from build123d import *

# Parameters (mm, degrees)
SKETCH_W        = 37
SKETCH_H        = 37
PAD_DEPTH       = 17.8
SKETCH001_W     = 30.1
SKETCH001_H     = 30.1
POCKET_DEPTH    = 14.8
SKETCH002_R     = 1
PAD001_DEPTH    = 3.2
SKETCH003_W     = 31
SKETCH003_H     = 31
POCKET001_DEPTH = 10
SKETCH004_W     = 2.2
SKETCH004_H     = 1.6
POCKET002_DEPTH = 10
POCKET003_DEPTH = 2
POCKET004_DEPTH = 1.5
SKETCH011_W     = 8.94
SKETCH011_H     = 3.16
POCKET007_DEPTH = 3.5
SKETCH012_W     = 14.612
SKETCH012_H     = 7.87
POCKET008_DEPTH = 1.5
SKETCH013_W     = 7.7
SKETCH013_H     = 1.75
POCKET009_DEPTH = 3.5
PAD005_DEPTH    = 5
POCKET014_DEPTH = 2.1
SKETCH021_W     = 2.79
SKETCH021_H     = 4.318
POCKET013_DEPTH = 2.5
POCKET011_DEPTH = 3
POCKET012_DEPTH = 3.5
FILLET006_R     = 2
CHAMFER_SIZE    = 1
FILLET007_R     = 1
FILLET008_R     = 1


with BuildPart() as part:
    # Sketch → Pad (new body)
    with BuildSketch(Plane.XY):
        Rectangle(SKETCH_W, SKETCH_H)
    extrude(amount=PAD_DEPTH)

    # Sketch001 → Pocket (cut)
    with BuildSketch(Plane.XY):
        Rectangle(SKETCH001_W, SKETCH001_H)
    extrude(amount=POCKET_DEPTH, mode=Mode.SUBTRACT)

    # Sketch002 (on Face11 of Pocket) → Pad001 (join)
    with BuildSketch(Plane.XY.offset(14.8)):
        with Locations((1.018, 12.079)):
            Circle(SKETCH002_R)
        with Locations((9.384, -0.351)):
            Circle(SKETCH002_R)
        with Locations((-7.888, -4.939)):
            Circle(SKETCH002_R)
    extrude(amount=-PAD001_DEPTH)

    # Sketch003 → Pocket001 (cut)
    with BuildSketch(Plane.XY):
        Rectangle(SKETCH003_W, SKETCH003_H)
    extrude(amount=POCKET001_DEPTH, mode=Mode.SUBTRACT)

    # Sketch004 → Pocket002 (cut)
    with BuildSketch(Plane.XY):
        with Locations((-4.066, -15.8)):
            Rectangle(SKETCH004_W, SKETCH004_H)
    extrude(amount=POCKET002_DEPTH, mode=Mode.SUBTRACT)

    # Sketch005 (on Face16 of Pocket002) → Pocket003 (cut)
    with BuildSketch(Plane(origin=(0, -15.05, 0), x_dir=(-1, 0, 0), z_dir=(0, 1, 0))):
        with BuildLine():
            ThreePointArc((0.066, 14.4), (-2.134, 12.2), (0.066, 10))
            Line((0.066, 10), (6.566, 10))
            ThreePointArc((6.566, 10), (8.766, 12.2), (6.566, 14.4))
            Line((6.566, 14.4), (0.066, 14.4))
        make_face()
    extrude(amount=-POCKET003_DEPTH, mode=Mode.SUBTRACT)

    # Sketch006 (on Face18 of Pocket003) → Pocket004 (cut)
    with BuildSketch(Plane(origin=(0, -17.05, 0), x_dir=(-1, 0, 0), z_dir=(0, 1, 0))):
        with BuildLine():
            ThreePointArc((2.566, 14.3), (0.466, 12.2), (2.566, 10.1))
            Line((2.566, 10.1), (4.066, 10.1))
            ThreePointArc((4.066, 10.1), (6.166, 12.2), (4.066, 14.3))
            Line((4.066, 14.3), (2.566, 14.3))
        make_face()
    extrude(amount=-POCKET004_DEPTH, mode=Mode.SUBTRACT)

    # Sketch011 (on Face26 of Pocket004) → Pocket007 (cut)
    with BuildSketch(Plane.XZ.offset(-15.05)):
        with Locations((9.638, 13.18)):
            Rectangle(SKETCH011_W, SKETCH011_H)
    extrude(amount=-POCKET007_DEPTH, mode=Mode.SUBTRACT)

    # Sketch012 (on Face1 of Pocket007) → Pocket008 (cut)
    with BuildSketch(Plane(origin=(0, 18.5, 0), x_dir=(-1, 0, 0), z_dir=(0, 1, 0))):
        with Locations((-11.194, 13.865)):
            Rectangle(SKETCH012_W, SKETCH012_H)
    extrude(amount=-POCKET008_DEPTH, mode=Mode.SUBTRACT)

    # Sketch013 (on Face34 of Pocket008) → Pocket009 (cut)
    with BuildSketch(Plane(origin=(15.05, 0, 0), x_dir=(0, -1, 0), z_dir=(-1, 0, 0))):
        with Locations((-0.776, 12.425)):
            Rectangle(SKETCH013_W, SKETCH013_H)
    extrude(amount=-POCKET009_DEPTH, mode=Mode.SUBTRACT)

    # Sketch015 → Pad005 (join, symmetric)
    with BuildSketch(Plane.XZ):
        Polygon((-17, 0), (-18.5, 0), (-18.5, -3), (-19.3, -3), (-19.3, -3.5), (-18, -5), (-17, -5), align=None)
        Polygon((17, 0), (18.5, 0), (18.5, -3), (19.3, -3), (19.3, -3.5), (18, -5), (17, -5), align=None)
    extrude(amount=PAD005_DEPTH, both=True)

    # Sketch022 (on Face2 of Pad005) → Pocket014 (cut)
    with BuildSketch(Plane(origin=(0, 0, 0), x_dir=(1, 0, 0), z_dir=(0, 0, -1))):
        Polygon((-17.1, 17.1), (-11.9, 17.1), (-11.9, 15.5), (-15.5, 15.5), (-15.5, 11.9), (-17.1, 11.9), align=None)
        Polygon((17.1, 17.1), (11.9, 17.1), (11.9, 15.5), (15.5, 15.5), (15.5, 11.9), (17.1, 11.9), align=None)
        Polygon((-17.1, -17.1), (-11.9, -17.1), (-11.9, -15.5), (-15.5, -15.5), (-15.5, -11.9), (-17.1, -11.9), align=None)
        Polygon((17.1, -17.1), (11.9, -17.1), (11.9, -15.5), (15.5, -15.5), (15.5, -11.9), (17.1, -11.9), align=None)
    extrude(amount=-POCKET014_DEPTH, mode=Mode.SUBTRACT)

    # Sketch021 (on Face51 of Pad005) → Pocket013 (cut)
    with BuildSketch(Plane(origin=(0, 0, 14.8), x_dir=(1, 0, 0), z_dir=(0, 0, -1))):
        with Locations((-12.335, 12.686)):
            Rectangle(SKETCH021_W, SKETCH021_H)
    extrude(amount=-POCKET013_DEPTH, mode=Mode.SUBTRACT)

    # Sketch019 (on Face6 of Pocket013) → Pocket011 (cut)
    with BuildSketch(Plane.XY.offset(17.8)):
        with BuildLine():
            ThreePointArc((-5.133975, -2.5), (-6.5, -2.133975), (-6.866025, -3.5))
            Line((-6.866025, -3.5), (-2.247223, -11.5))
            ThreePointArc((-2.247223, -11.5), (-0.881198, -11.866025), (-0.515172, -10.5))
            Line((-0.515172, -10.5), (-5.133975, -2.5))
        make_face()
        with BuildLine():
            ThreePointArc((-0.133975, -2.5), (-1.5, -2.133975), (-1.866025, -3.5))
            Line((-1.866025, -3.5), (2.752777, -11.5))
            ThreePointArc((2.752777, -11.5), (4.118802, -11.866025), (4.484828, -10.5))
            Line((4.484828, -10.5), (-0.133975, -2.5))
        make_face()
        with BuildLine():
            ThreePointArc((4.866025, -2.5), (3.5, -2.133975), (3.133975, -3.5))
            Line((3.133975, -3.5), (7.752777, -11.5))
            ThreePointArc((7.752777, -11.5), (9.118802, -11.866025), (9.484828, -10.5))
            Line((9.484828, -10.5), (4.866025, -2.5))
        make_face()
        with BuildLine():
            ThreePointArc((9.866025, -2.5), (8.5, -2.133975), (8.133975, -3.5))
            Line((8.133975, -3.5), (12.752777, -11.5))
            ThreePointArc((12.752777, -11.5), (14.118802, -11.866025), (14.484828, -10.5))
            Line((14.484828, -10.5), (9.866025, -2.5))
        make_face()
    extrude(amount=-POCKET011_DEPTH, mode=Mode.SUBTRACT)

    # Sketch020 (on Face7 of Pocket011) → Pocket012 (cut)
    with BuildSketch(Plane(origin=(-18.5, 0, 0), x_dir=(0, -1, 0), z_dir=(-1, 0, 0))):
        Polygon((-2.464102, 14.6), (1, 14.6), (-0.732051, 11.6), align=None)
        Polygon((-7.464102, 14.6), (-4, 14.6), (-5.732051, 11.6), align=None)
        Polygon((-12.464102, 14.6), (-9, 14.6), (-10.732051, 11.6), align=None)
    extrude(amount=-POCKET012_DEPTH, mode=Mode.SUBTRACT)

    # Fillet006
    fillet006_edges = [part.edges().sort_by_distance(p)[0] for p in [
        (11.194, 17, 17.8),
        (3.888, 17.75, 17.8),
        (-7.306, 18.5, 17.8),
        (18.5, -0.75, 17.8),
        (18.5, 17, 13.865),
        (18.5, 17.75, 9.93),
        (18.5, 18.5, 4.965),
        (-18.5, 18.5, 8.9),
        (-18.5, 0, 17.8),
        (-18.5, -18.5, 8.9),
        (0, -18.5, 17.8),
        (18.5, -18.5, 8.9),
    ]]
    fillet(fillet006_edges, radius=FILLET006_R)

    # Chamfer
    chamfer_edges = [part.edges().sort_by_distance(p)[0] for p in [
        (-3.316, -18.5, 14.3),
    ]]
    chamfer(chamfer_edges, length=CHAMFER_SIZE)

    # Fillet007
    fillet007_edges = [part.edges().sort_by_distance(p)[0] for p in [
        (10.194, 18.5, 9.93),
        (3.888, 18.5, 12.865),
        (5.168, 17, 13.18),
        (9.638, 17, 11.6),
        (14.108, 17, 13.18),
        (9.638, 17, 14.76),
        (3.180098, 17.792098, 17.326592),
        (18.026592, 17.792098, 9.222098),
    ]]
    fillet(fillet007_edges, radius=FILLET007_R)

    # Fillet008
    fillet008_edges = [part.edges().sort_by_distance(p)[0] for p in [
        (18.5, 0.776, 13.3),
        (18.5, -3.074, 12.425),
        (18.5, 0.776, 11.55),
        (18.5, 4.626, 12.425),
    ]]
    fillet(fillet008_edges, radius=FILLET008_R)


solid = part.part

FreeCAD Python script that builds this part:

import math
import FreeCAD as App
import Part
import Sketcher
Q = App.Units.Quantity


def edges_at(feature, points):
    """Names of the edges that pass closest to the given points."""
    edges = feature.Shape.Edges
    near = lambda p: min(range(len(edges)), key=lambda i: edges[i].distToShape(Part.Vertex(*p))[0])
    return sorted({f"Edge{near(p) + 1}" for p in points})


def add_polygon(sketch, points):
    """Adds a closed chain of lines whose ends are joined by coincident constraints."""
    first, n = sketch.GeometryCount, len(points)
    for a, b in zip(points, points[1:] + points[:1]):
        sketch.addGeometry(Part.LineSegment(App.Vector(*a, 0), App.Vector(*b, 0)), False)
    for i in range(n):
        sketch.addConstraint(Sketcher.Constraint("Coincident", first + i, 2, first + (i + 1) % n, 1))

doc = App.newDocument("Part")
body = doc.addObject("PartDesign::Body", "Body")

# Sketch on XY plane
sketch1 = body.newObject("Sketcher::SketchObject", "Sketch")
sketch1.AttachmentSupport = (doc.getObject("XY_Plane"), [""])
sketch1.MapMode = "FlatFace"
add_polygon(sketch1, [(-18, 18), (-18, -18), (18, -18), (18, 18)])  # lines 0-3
sketch1.addConstraint(Sketcher.Constraint("Vertical", 0))
sketch1.addConstraint(Sketcher.Constraint("Horizontal", 1))
sketch1.addConstraint(Sketcher.Constraint("Vertical", 2))
sketch1.addConstraint(Sketcher.Constraint("Horizontal", 3))
sketch1.addConstraint(Sketcher.Constraint("Symmetric", 0, 2, 2, 2, -1, 1))
sketch1.addConstraint(Sketcher.Constraint("Equal", 3, 0))
sketch1.addConstraint(Sketcher.Constraint("DistanceX", 1, 1, 1, 2, 37.0))
pad1 = body.newObject("PartDesign::Pad", "Pad")
pad1.Profile = sketch1
pad1.Length = 17.8

# Sketch on XY plane
sketch2 = body.newObject("Sketcher::SketchObject", "Sketch001")
sketch2.AttachmentSupport = (doc.getObject("XY_Plane"), [""])
sketch2.MapMode = "FlatFace"
add_polygon(sketch2, [(-15, 15), (-15, -15), (15, -15), (15, 15)])  # lines 0-3
sketch2.addConstraint(Sketcher.Constraint("Vertical", 0))
sketch2.addConstraint(Sketcher.Constraint("Horizontal", 1))
sketch2.addConstraint(Sketcher.Constraint("Vertical", 2))
sketch2.addConstraint(Sketcher.Constraint("Horizontal", 3))
sketch2.addConstraint(Sketcher.Constraint("Symmetric", 0, 2, 2, 2, -1, 1))
sketch2.addConstraint(Sketcher.Constraint("Equal", 3, 0))
sketch2.addConstraint(Sketcher.Constraint("DistanceX", 1, 1, 1, 2, 30.1))
pocket1 = body.newObject("PartDesign::Pocket", "Pocket")
pocket1.Profile = sketch2
pocket1.Length = 14.8
pocket1.Reversed = True

# Sketch on XY plane
sketch3 = body.newObject("Sketcher::SketchObject", "Sketch002")
sketch3.AttachmentSupport = (doc.getObject("XY_Plane"), [""])
sketch3.MapMode = "FlatFace"
sketch3.AttachmentOffset = App.Placement(App.Vector(0, 0, 14.8), App.Rotation())
sketch3.addGeometry(Part.Circle(App.Vector(1, 12.1, 0), App.Vector(0, 0, 1), 1), False)
sketch3.addGeometry(Part.Circle(App.Vector(9.4, -0.4, 0), App.Vector(0, 0, 1), 1), False)
sketch3.addGeometry(Part.Circle(App.Vector(-7.9, -4.9, 0), App.Vector(0, 0, 1), 1), False)
sketch3.addConstraint(Sketcher.Constraint("Equal", 0, 1))
sketch3.addConstraint(Sketcher.Constraint("Equal", 1, 2))
sketch3.addConstraint(Sketcher.Constraint("Diameter", 0, 2.0))
sketch3.addConstraint(Sketcher.Constraint("DistanceY", 1, 3, 0, 3, 12.43))
sketch3.addConstraint(Sketcher.Constraint("DistanceX", -1, 1, 0, 3, 1.018))
sketch3.addConstraint(Sketcher.Constraint("DistanceY", -1, 1, 0, 3, 12.079))
sketch3.addConstraint(Sketcher.Constraint("DistanceX", -1, 1, 1, 3, 9.384))
sketch3.addConstraint(Sketcher.Constraint("DistanceX", 2, 3, -1, 1, 7.888))
sketch3.addConstraint(Sketcher.Constraint("DistanceY", 2, 3, -1, 1, 4.939))
pad2 = body.newObject("PartDesign::Pad", "Pad001")
pad2.Profile = sketch3
pad2.Length = 3.2
pad2.Reversed = True

# Sketch on XY plane
sketch4 = body.newObject("Sketcher::SketchObject", "Sketch003")
sketch4.AttachmentSupport = (doc.getObject("XY_Plane"), [""])
sketch4.MapMode = "FlatFace"
add_polygon(sketch4, [(-16, 16), (-16, -16), (16, -16), (16, 16)])  # lines 0-3
sketch4.addConstraint(Sketcher.Constraint("Vertical", 0))
sketch4.addConstraint(Sketcher.Constraint("Horizontal", 1))
sketch4.addConstraint(Sketcher.Constraint("Vertical", 2))
sketch4.addConstraint(Sketcher.Constraint("Horizontal", 3))
sketch4.addConstraint(Sketcher.Constraint("Symmetric", 0, 2, 2, 2, -1, 1))
sketch4.addConstraint(Sketcher.Constraint("Equal", 3, 0))
sketch4.addConstraint(Sketcher.Constraint("DistanceX", 1, 1, 1, 2, 31.0))
pocket2 = body.newObject("PartDesign::Pocket", "Pocket001")
pocket2.Profile = sketch4
pocket2.Length = 10
pocket2.Reversed = True

# Sketch on XY plane
sketch5 = body.newObject("Sketcher::SketchObject", "Sketch004")
sketch5.AttachmentSupport = (doc.getObject("XY_Plane"), [""])
sketch5.MapMode = "FlatFace"
add_polygon(sketch5, [(-5.2, -15), (-5.2, -16.6), (-3, -16.6), (-3, -15)])  # lines 0-3
sketch5.addConstraint(Sketcher.Constraint("Vertical", 0))
sketch5.addConstraint(Sketcher.Constraint("Horizontal", 1))
sketch5.addConstraint(Sketcher.Constraint("Vertical", 2))
sketch5.addConstraint(Sketcher.Constraint("Horizontal", 3))
sketch5.addConstraint(Sketcher.Constraint("DistanceX", 1, 1, 1, 2, 2.2))
sketch5.addConstraint(Sketcher.Constraint("DistanceY", 0, 2, 0, 1, 1.6))
sketch5.addConstraint(Sketcher.Constraint("DistanceY", 2, 2, -1, 1, 15.0))
sketch5.addConstraint(Sketcher.Constraint("DistanceX", 0, 2, -1, 1, 5.166))
pocket3 = body.newObject("PartDesign::Pocket", "Pocket002")
pocket3.Profile = sketch5
pocket3.Length = 10
pocket3.Reversed = True

# Sketch on XZ plane
sketch6 = body.newObject("Sketcher::SketchObject", "Sketch005")
sketch6.AttachmentSupport = (doc.getObject("XZ_Plane"), [""])
sketch6.MapMode = "FlatFace"
sketch6.AttachmentOffset = App.Placement(App.Vector(0, 0, 15.05), App.Rotation())
sketch6.addGeometry(Part.ArcOfCircle(Part.Circle(App.Vector(-0.1, 12.2, 0), App.Vector(0, 0, 1), 2.2), math.radians(-90), math.radians(90)), False)
sketch6.addGeometry(Part.LineSegment(App.Vector(-0.1, 10, 0), App.Vector(-6.6, 10, 0)), False)
sketch6.addGeometry(Part.ArcOfCircle(Part.Circle(App.Vector(-6.6, 12.2, 0), App.Vector(0, 0, 1), 2.2), math.radians(90), math.radians(270)), False)
sketch6.addGeometry(Part.LineSegment(App.Vector(-6.6, 14.4, 0), App.Vector(-0.1, 14.4, 0)), False)
sketch6.addConstraint(Sketcher.Constraint("Tangent", 0, 1, 1, 1))
sketch6.addConstraint(Sketcher.Constraint("Tangent", 1, 2, 2, 2))
sketch6.addConstraint(Sketcher.Constraint("Tangent", 2, 1, 3, 1))
sketch6.addConstraint(Sketcher.Constraint("Tangent", 3, 2, 0, 2))
sketch6.addConstraint(Sketcher.Constraint("Horizontal", 1))
sketch6.addConstraint(Sketcher.Constraint("Horizontal", 3))
sketch6.addConstraint(Sketcher.Constraint("Radius", 0, 2.2))
sketch6.addConstraint(Sketcher.Constraint("DistanceX", 1, 2, 1, 1, 6.5))
sketch6.addConstraint(Sketcher.Constraint("DistanceY", -1, 1, 0, 1, 10.0))
sketch6.addConstraint(Sketcher.Constraint("DistanceX", 0, 3, -1, 1, 0.066))
pocket4 = body.newObject("PartDesign::Pocket", "Pocket003")
pocket4.Profile = sketch6
pocket4.Length = 2
pocket4.Reversed = True

# Sketch on XZ plane
sketch7 = body.newObject("Sketcher::SketchObject", "Sketch006")
sketch7.AttachmentSupport = (doc.getObject("XZ_Plane"), [""])
sketch7.MapMode = "FlatFace"
sketch7.AttachmentOffset = App.Placement(App.Vector(0, 0, 17.05), App.Rotation())
sketch7.addGeometry(Part.ArcOfCircle(Part.Circle(App.Vector(-2.6, 12.2, 0), App.Vector(0, 0, 1), 2.1), math.radians(-90), math.radians(90)), False)
sketch7.addGeometry(Part.LineSegment(App.Vector(-2.6, 10.1, 0), App.Vector(-4.1, 10.1, 0)), False)
sketch7.addGeometry(Part.ArcOfCircle(Part.Circle(App.Vector(-4.1, 12.2, 0), App.Vector(0, 0, 1), 2.1), math.radians(90), math.radians(270)), False)
sketch7.addGeometry(Part.LineSegment(App.Vector(-4.1, 14.3, 0), App.Vector(-2.6, 14.3, 0)), False)
sketch7.addConstraint(Sketcher.Constraint("Tangent", 0, 1, 1, 1))
sketch7.addConstraint(Sketcher.Constraint("Tangent", 1, 2, 2, 2))
sketch7.addConstraint(Sketcher.Constraint("Tangent", 2, 1, 3, 1))
sketch7.addConstraint(Sketcher.Constraint("Tangent", 3, 2, 0, 2))
sketch7.addConstraint(Sketcher.Constraint("Horizontal", 1))
sketch7.addConstraint(Sketcher.Constraint("Horizontal", 3))
sketch7.addConstraint(Sketcher.Constraint("Radius", 0, 2.1))
sketch7.addConstraint(Sketcher.Constraint("DistanceX", 1, 2, 1, 1, 1.5))
sketch7.addConstraint(Sketcher.Constraint("DistanceY", -1, 1, 0, 3, 12.2))
sketch7.addConstraint(Sketcher.Constraint("DistanceX", 0, 3, -1, 1, 2.566))
pocket5 = body.newObject("PartDesign::Pocket", "Pocket004")
pocket5.Profile = sketch7
pocket5.Length = 1.5
pocket5.Reversed = True

# Sketch on XZ plane
sketch8 = body.newObject("Sketcher::SketchObject", "Sketch007")
sketch8.AttachmentSupport = (doc.getObject("XZ_Plane"), [""])
sketch8.MapMode = "FlatFace"
sketch8.AttachmentOffset = App.Placement(App.Vector(0, 0, -15.05), App.Rotation())
add_polygon(sketch8, [(5.2, 14.8), (5.2, 11.6), (14.1, 11.6), (14.1, 14.8)])  # lines 0-3
sketch8.addConstraint(Sketcher.Constraint("Vertical", 0))
sketch8.addConstraint(Sketcher.Constraint("Horizontal", 1))
sketch8.addConstraint(Sketcher.Constraint("Vertical", 2))
sketch8.addConstraint(Sketcher.Constraint("Horizontal", 3))
sketch8.addConstraint(Sketcher.Constraint("DistanceX", 1, 1, 1, 2, 8.94))
sketch8.addConstraint(Sketcher.Constraint("DistanceY", 0, 2, 0, 1, 3.16))
sketch8.addConstraint(Sketcher.Constraint("DistanceY", -1, 1, 0, 2, 11.6))
sketch8.addConstraint(Sketcher.Constraint("DistanceX", -1, 1, 0, 2, 5.168))
pocket6 = body.newObject("PartDesign::Pocket", "Pocket005")
pocket6.Profile = sketch8
pocket6.Length = 3.5

# Sketch on XZ plane
sketch9 = body.newObject("Sketcher::SketchObject", "Sketch008")
sketch9.AttachmentSupport = (doc.getObject("XZ_Plane"), [""])
sketch9.MapMode = "FlatFace"
sketch9.AttachmentOffset = App.Placement(App.Vector(0, 0, -18.5), App.Rotation())
add_polygon(sketch9, [(18, 18), (18, 10), (4, 10), (4, 18)])  # lines 0-3
sketch9.addConstraint(Sketcher.Constraint("Vertical", 0))
sketch9.addConstraint(Sketcher.Constraint("Horizontal", 1))
sketch9.addConstraint(Sketcher.Constraint("Vertical", 2))
sketch9.addConstraint(Sketcher.Constraint("Horizontal", 3))
sketch9.addConstraint(Sketcher.Constraint("DistanceY", 0, 2, 0, 1, 7.87))
sketch9.addConstraint(Sketcher.Constraint("DistanceX", -1, 1, 0, 2, 18.5))
sketch9.addConstraint(Sketcher.Constraint("DistanceY", -1, 1, 2, 2, 17.8))
sketch9.addConstraint(Sketcher.Constraint("DistanceX", 1, 2, 1, 1, 14.612))
pocket7 = body.newObject("PartDesign::Pocket", "Pocket006")
pocket7.Profile = sketch9
pocket7.Length = 1.5
pocket7.Reversed = True

# Sketch on YZ plane
sketch10 = body.newObject("Sketcher::SketchObject", "Sketch009")
sketch10.AttachmentSupport = (doc.getObject("YZ_Plane"), [""])
sketch10.MapMode = "FlatFace"
sketch10.AttachmentOffset = App.Placement(App.Vector(0, 0, 15.05), App.Rotation())
add_polygon(sketch10, [(4.6, 13.3), (4.6, 11.6), (-3.1, 11.6), (-3.1, 13.3)])  # lines 0-3
sketch10.addConstraint(Sketcher.Constraint("Vertical", 0))
sketch10.addConstraint(Sketcher.Constraint("Horizontal", 1))
sketch10.addConstraint(Sketcher.Constraint("Vertical", 2))
sketch10.addConstraint(Sketcher.Constraint("Horizontal", 3))
sketch10.addConstraint(Sketcher.Constraint("DistanceX", 1, 2, 1, 1, 7.7))
sketch10.addConstraint(Sketcher.Constraint("DistanceY", 0, 2, 0, 1, 1.75))
sketch10.addConstraint(Sketcher.Constraint("DistanceY", -1, 1, 2, 2, 13.3))
sketch10.addConstraint(Sketcher.Constraint("DistanceX", -1, 1, 0, 2, 4.626))
pocket8 = body.newObject("PartDesign::Pocket", "Pocket007")
pocket8.Profile = sketch10
pocket8.Length = 3.5
pocket8.Reversed = True

# Sketch on XZ plane
sketch11 = body.newObject("Sketcher::SketchObject", "Sketch010")
sketch11.AttachmentSupport = (doc.getObject("XZ_Plane"), [""])
sketch11.MapMode = "FlatFace"
add_polygon(sketch11, [(-17, 0), (-18.5, 0), (-18.5, -3), (-19.3, -3), (-19.3, -3.5), (-18, -5), (-17, -5)])  # lines 0-6
add_polygon(sketch11, [(18.5, 0), (17, 0), (17, -5), (18, -5), (19.3, -3.5), (19.3, -3), (18.5, -3)])  # lines 7-13
sketch11.addConstraint(Sketcher.Constraint("Horizontal", 0))
sketch11.addConstraint(Sketcher.Constraint("Vertical", 1))
sketch11.addConstraint(Sketcher.Constraint("Horizontal", 2))
sketch11.addConstraint(Sketcher.Constraint("Vertical", 3))
sketch11.addConstraint(Sketcher.Constraint("Horizontal", 5))
sketch11.addConstraint(Sketcher.Constraint("Vertical", 6))
sketch11.addConstraint(Sketcher.Constraint("Horizontal", 7))
sketch11.addConstraint(Sketcher.Constraint("Vertical", 8))
sketch11.addConstraint(Sketcher.Constraint("Horizontal", 9))
sketch11.addConstraint(Sketcher.Constraint("Vertical", 11))
sketch11.addConstraint(Sketcher.Constraint("Horizontal", 12))
sketch11.addConstraint(Sketcher.Constraint("Vertical", 13))
sketch11.addConstraint(Sketcher.Constraint("Symmetric", 6, 2, 7, 2, -1, 1))
sketch11.addConstraint(Sketcher.Constraint("Symmetric", 4, 2, 9, 2, -2))
sketch11.addConstraint(Sketcher.Constraint("Symmetric", 3, 2, 10, 2, -2))
sketch11.addConstraint(Sketcher.Constraint("Symmetric", 1, 2, 12, 2, -2))
sketch11.addConstraint(Sketcher.Constraint("PointOnObject", 0, 2, -1))
sketch11.addConstraint(Sketcher.Constraint("DistanceX", 5, 1, 5, 2, 1.0))
sketch11.addConstraint(Sketcher.Constraint("DistanceY", 1, 2, 1, 1, 3.0))
sketch11.addConstraint(Sketcher.Constraint("DistanceY", 6, 1, 6, 2, 5.0))
sketch11.addConstraint(Sketcher.Constraint("DistanceX", 0, 2, 0, 1, 1.5))
sketch11.addConstraint(Sketcher.Constraint("DistanceX", 2, 2, 2, 1, 0.8))
sketch11.addConstraint(Sketcher.Constraint("DistanceY", 3, 2, 3, 1, 0.5))
sketch11.addConstraint(Sketcher.Constraint("DistanceX", 4, 2, -1, 1, 18.0))
pad3 = body.newObject("PartDesign::Pad", "Pad002")
pad3.Profile = sketch11
pad3.Length = 10
pad3.Midplane = True

# Sketch on XY plane
sketch12 = body.newObject("Sketcher::SketchObject", "Sketch011")
sketch12.AttachmentSupport = (doc.getObject("XY_Plane"), [""])
sketch12.MapMode = "FlatFace"
add_polygon(sketch12, [(-11.9, -17.1), (-17.1, -17.1), (-17.1, -11.9), (-15.5, -11.9), (-15.5, -15.5), (-11.9, -15.5)])  # lines 0-5
add_polygon(sketch12, [(17.1, -17.1), (11.9, -17.1), (11.9, -15.5), (15.5, -15.5), (15.5, -11.9), (17.1, -11.9)])  # lines 6-11
add_polygon(sketch12, [(-17.1, 17.1), (-11.9, 17.1), (-11.9, 15.5), (-15.5, 15.5), (-15.5, 11.9), (-17.1, 11.9)])  # lines 12-17
add_polygon(sketch12, [(11.9, 17.1), (17.1, 17.1), (17.1, 11.9), (15.5, 11.9), (15.5, 15.5), (11.9, 15.5)])  # lines 18-23
sketch12.addConstraint(Sketcher.Constraint("Horizontal", 0))
sketch12.addConstraint(Sketcher.Constraint("Vertical", 1))
sketch12.addConstraint(Sketcher.Constraint("Horizontal", 2))
sketch12.addConstraint(Sketcher.Constraint("Vertical", 3))
sketch12.addConstraint(Sketcher.Constraint("Horizontal", 4))
sketch12.addConstraint(Sketcher.Constraint("Vertical", 5))
sketch12.addConstraint(Sketcher.Constraint("Horizontal", 6))
sketch12.addConstraint(Sketcher.Constraint("Vertical", 7))
sketch12.addConstraint(Sketcher.Constraint("Horizontal", 8))
sketch12.addConstraint(Sketcher.Constraint("Vertical", 9))
sketch12.addConstraint(Sketcher.Constraint("Horizontal", 10))
sketch12.addConstraint(Sketcher.Constraint("Vertical", 11))
sketch12.addConstraint(Sketcher.Constraint("Horizontal", 12))
sketch12.addConstraint(Sketcher.Constraint("Vertical", 13))
sketch12.addConstraint(Sketcher.Constraint("Horizontal", 14))
sketch12.addConstraint(Sketcher.Constraint("Vertical", 15))
sketch12.addConstraint(Sketcher.Constraint("Horizontal", 16))
sketch12.addConstraint(Sketcher.Constraint("Vertical", 17))
sketch12.addConstraint(Sketcher.Constraint("Horizontal", 18))
sketch12.addConstraint(Sketcher.Constraint("Vertical", 19))
sketch12.addConstraint(Sketcher.Constraint("Horizontal", 20))
sketch12.addConstraint(Sketcher.Constraint("Vertical", 21))
sketch12.addConstraint(Sketcher.Constraint("Horizontal", 22))
sketch12.addConstraint(Sketcher.Constraint("Vertical", 23))
sketch12.addConstraint(Sketcher.Constraint("Symmetric", 6, 2, 12, 2, -1, 1))
sketch12.addConstraint(Sketcher.Constraint("Symmetric", 8, 2, 14, 2, -1, 1))
sketch12.addConstraint(Sketcher.Constraint("Symmetric", 10, 2, 16, 2, -1, 1))
sketch12.addConstraint(Sketcher.Constraint("Symmetric", 0, 2, 18, 2, -1, 1))
sketch12.addConstraint(Sketcher.Constraint("Symmetric", 2, 2, 20, 2, -1, 1))
sketch12.addConstraint(Sketcher.Constraint("Symmetric", 4, 2, 22, 2, -1, 1))
sketch12.addConstraint(Sketcher.Constraint("Symmetric", 5, 2, 6, 2, -2))
sketch12.addConstraint(Sketcher.Constraint("Symmetric", 3, 2, 8, 2, -2))
sketch12.addConstraint(Sketcher.Constraint("Symmetric", 1, 2, 10, 2, -2))
sketch12.addConstraint(Sketcher.Constraint("Equal", 18, 1))
sketch12.addConstraint(Sketcher.Constraint("Equal", 22, 3))
sketch12.addConstraint(Sketcher.Constraint("DistanceX", 0, 2, 0, 1, 5.2))
sketch12.addConstraint(Sketcher.Constraint("DistanceX", 2, 1, 2, 2, 1.6))
sketch12.addConstraint(Sketcher.Constraint("DistanceX", 0, 2, 6, 2, 29.0))
sketch12.addConstraint(Sketcher.Constraint("DistanceY", 2, 2, 12, 2, 29.0))
pocket9 = body.newObject("PartDesign::Pocket", "Pocket008")
pocket9.Profile = sketch12
pocket9.Length = 2.1
pocket9.Reversed = True

# Sketch on XY plane
sketch13 = body.newObject("Sketcher::SketchObject", "Sketch012")
sketch13.AttachmentSupport = (doc.getObject("XY_Plane"), [""])
sketch13.MapMode = "FlatFace"
sketch13.AttachmentOffset = App.Placement(App.Vector(0, 0, 14.8), App.Rotation())
add_polygon(sketch13, [(-13.7, -14.8), (-13.7, -10.5), (-10.9, -10.5), (-10.9, -14.8)])  # lines 0-3
sketch13.addConstraint(Sketcher.Constraint("Vertical", 0))
sketch13.addConstraint(Sketcher.Constraint("Horizontal", 1))
sketch13.addConstraint(Sketcher.Constraint("Vertical", 2))
sketch13.addConstraint(Sketcher.Constraint("Horizontal", 3))
sketch13.addConstraint(Sketcher.Constraint("DistanceX", 1, 1, 1, 2, 2.79))
sketch13.addConstraint(Sketcher.Constraint("DistanceY", 0, 1, 0, 2, 4.318))
sketch13.addConstraint(Sketcher.Constraint("DistanceX", 0, 2, -1, 1, 13.73))
sketch13.addConstraint(Sketcher.Constraint("DistanceY", 0, 2, -1, 1, 10.527))
pocket10 = body.newObject("PartDesign::Pocket", "Pocket009")
pocket10.Profile = sketch13
pocket10.Length = 2.5
pocket10.Reversed = True

# Sketch on XY plane
sketch14 = body.newObject("Sketcher::SketchObject", "Sketch013")
sketch14.AttachmentSupport = (doc.getObject("XY_Plane"), [""])
sketch14.MapMode = "FlatFace"
sketch14.AttachmentOffset = App.Placement(App.Vector(0, 0, 17.8), App.Rotation())
sketch14.addGeometry(Part.ArcOfCircle(Part.Circle(App.Vector(-6, -3, 0), App.Vector(0, 0, 1), 1), math.radians(30), math.radians(210)), False)
sketch14.addGeometry(Part.LineSegment(App.Vector(-6.9, -3.5, 0), App.Vector(-2.2, -11.5, 0)), False)
sketch14.addGeometry(Part.ArcOfCircle(Part.Circle(App.Vector(-1.4, -11, 0), App.Vector(0, 0, 1), 1), math.radians(-150), math.radians(30)), False)
sketch14.addGeometry(Part.LineSegment(App.Vector(-0.5, -10.5, 0), App.Vector(-5.1, -2.5, 0)), False)
sketch14.addGeometry(Part.ArcOfCircle(Part.Circle(App.Vector(-1, -3, 0), App.Vector(0, 0, 1), 1), math.radians(30), math.radians(210)), False)
sketch14.addGeometry(Part.LineSegment(App.Vector(-1.9, -3.5, 0), App.Vector(2.8, -11.5, 0)), False)
sketch14.addGeometry(Part.ArcOfCircle(Part.Circle(App.Vector(3.6, -11, 0), App.Vector(0, 0, 1), 1), math.radians(-150), math.radians(30)), False)
sketch14.addGeometry(Part.LineSegment(App.Vector(4.5, -10.5, 0), App.Vector(-0.1, -2.5, 0)), False)
sketch14.addGeometry(Part.ArcOfCircle(Part.Circle(App.Vector(4, -3, 0), App.Vector(0, 0, 1), 1), math.radians(30), math.radians(210)), False)
sketch14.addGeometry(Part.LineSegment(App.Vector(3.1, -3.5, 0), App.Vector(7.8, -11.5, 0)), False)
sketch14.addGeometry(Part.ArcOfCircle(Part.Circle(App.Vector(8.6, -11, 0), App.Vector(0, 0, 1), 1), math.radians(-150), math.radians(30)), False)
sketch14.addGeometry(Part.LineSegment(App.Vector(9.5, -10.5, 0), App.Vector(4.9, -2.5, 0)), False)
sketch14.addGeometry(Part.ArcOfCircle(Part.Circle(App.Vector(9, -3, 0), App.Vector(0, 0, 1), 1), math.radians(30), math.radians(210)), False)
sketch14.addGeometry(Part.LineSegment(App.Vector(8.1, -3.5, 0), App.Vector(12.8, -11.5, 0)), False)
sketch14.addGeometry(Part.ArcOfCircle(Part.Circle(App.Vector(13.6, -11, 0), App.Vector(0, 0, 1), 1), math.radians(-150), math.radians(30)), False)
sketch14.addGeometry(Part.LineSegment(App.Vector(14.5, -10.5, 0), App.Vector(9.9, -2.5, 0)), False)
sketch14.addConstraint(Sketcher.Constraint("Tangent", 0, 2, 1, 1))
sketch14.addConstraint(Sketcher.Constraint("Tangent", 1, 2, 2, 1))
sketch14.addConstraint(Sketcher.Constraint("Tangent", 2, 2, 3, 1))
sketch14.addConstraint(Sketcher.Constraint("Tangent", 3, 2, 0, 1))
sketch14.addConstraint(Sketcher.Constraint("Tangent", 4, 2, 5, 1))
sketch14.addConstraint(Sketcher.Constraint("Tangent", 5, 2, 6, 1))
sketch14.addConstraint(Sketcher.Constraint("Tangent", 6, 2, 7, 1))
sketch14.addConstraint(Sketcher.Constraint("Tangent", 7, 2, 4, 1))
sketch14.addConstraint(Sketcher.Constraint("Tangent", 8, 2, 9, 1))
sketch14.addConstraint(Sketcher.Constraint("Tangent", 9, 2, 10, 1))
sketch14.addConstraint(Sketcher.Constraint("Tangent", 10, 2, 11, 1))
sketch14.addConstraint(Sketcher.Constraint("Tangent", 11, 2, 8, 1))
sketch14.addConstraint(Sketcher.Constraint("Tangent", 12, 2, 13, 1))
sketch14.addConstraint(Sketcher.Constraint("Tangent", 13, 2, 14, 1))
sketch14.addConstraint(Sketcher.Constraint("Tangent", 14, 2, 15, 1))
sketch14.addConstraint(Sketcher.Constraint("Tangent", 15, 2, 12, 1))
sketch14.addConstraint(Sketcher.Constraint("Equal", 0, 2))
sketch14.addConstraint(Sketcher.Constraint("Equal", 2, 4))
sketch14.addConstraint(Sketcher.Constraint("Equal", 4, 6))
sketch14.addConstraint(Sketcher.Constraint("Equal", 6, 8))
sketch14.addConstraint(Sketcher.Constraint("Equal", 8, 10))
sketch14.addConstraint(Sketcher.Constraint("Equal", 10, 12))
sketch14.addConstraint(Sketcher.Constraint("Equal", 12, 14))
sketch14.addConstraint(Sketcher.Constraint("Parallel", 3, 5))
sketch14.addConstraint(Sketcher.Constraint("Parallel", 7, 9))
sketch14.addConstraint(Sketcher.Constraint("Parallel", 11, 13))
sketch14.addConstraint(Sketcher.Constraint("Horizontal", 0, 3, 4, 3))
sketch14.addConstraint(Sketcher.Constraint("Horizontal", 2, 3, 6, 3))
sketch14.addConstraint(Sketcher.Constraint("Horizontal", 4, 3, 8, 3))
sketch14.addConstraint(Sketcher.Constraint("Horizontal", 6, 3, 10, 3))
sketch14.addConstraint(Sketcher.Constraint("Horizontal", 8, 3, 12, 3))
sketch14.addConstraint(Sketcher.Constraint("Horizontal", 10, 3, 14, 3))
sketch14.addConstraint(Sketcher.Constraint("Radius", 0, 1.0))
sketch14.addConstraint(Sketcher.Constraint("Angle", 1, Q("-60.000001 deg")))
sketch14.addConstraint(Sketcher.Constraint("DistanceX", 0, 3, -1, 1, 6.0))
sketch14.addConstraint(Sketcher.Constraint("DistanceY", 0, 3, -1, 1, 3.0))
sketch14.addConstraint(Sketcher.Constraint("DistanceY", 2, 3, -1, 1, 10.999999))
sketch14.addConstraint(Sketcher.Constraint("DistanceX", 4, 3, -1, 1, 1.0))
sketch14.addConstraint(Sketcher.Constraint("DistanceX", -1, 1, 8, 3, 4.0))
sketch14.addConstraint(Sketcher.Constraint("DistanceX", -1, 1, 12, 3, 9.0))
pocket11 = body.newObject("PartDesign::Pocket", "Pocket010")
pocket11.Profile = sketch14
pocket11.Length = 3

# Sketch on YZ plane
sketch15 = body.newObject("Sketcher::SketchObject", "Sketch014")
sketch15.AttachmentSupport = (doc.getObject("YZ_Plane"), [""])
sketch15.MapMode = "FlatFace"
sketch15.AttachmentOffset = App.Placement(App.Vector(0, 0, -18.5), App.Rotation())
add_polygon(sketch15, [(-1, 14.6), (2.5, 14.6), (0.7, 11.6)])  # lines 0-2
add_polygon(sketch15, [(4, 14.6), (7.5, 14.6), (5.7, 11.6)])  # lines 3-5
add_polygon(sketch15, [(9, 14.6), (12.5, 14.6), (10.7, 11.6)])  # lines 6-8
sketch15.addConstraint(Sketcher.Constraint("Horizontal", 0))
sketch15.addConstraint(Sketcher.Constraint("Horizontal", 3))
sketch15.addConstraint(Sketcher.Constraint("Horizontal", 6))
sketch15.addConstraint(Sketcher.Constraint("Parallel", 1, 4))
sketch15.addConstraint(Sketcher.Constraint("Parallel", 2, 5))
sketch15.addConstraint(Sketcher.Constraint("Parallel", 4, 7))
sketch15.addConstraint(Sketcher.Constraint("Parallel", 5, 8))
sketch15.addConstraint(Sketcher.Constraint("Horizontal", 2, 2, 3, 2))
sketch15.addConstraint(Sketcher.Constraint("Horizontal", 1, 2, 4, 2))
sketch15.addConstraint(Sketcher.Constraint("Horizontal", 5, 2, 6, 2))
sketch15.addConstraint(Sketcher.Constraint("Horizontal", 4, 2, 7, 2))
sketch15.addConstraint(Sketcher.Constraint("Equal", 1, 2))
sketch15.addConstraint(Sketcher.Constraint("Angle", 1, Q("-120.000003 deg")))
sketch15.addConstraint(Sketcher.Constraint("DistanceX", 2, 2, -1, 1, 1.0))
sketch15.addConstraint(Sketcher.Constraint("DistanceX", -1, 1, 5, 2, 4.0))
sketch15.addConstraint(Sketcher.Constraint("DistanceX", -1, 1, 8, 2, 9.0))
sketch15.addConstraint(Sketcher.Constraint("DistanceY", 1, 2, 0, 2, 3.0))
sketch15.addConstraint(Sketcher.Constraint("DistanceY", -1, 1, 0, 2, 14.6))
pocket12 = body.newObject("PartDesign::Pocket", "Pocket011")
pocket12.Profile = sketch15
pocket12.Length = 3.5
pocket12.Reversed = True
doc.recompute()

fillet = body.newObject("PartDesign::Fillet", "Fillet")
fillet.Base = (pocket12, edges_at(pocket12, [
    (11.194, 17, 17.8),
    (3.888, 17.75, 17.8),
    (-7.306, 18.5, 17.8),
    (18.5, -0.75, 17.8),
    (18.5, 17, 13.865),
    (18.5, 17.75, 9.93),
    (18.5, 18.5, 4.965),
    (-18.5, 18.5, 8.9),
    (-18.5, 0, 17.8),
    (-18.5, -18.5, 8.9),
    (0, -18.5, 17.8),
    (18.5, -18.5, 8.9),
]))
fillet.Radius = 2
doc.recompute()

chamfer = body.newObject("PartDesign::Chamfer", "Chamfer")
chamfer.Base = (fillet, edges_at(fillet, [(-3.316, -18.5, 14.3)]))
chamfer.Size = 1
doc.recompute()

fillet2 = body.newObject("PartDesign::Fillet", "Fillet001")
fillet2.Base = (chamfer, edges_at(chamfer, [
    (10.194, 18.5, 9.93),
    (3.888, 18.5, 12.865),
    (5.168, 17, 13.18),
    (9.638, 17, 11.6),
    (14.108, 17, 13.18),
    (9.638, 17, 14.76),
    (3.18, 17.792, 17.327),
    (18.027, 17.792, 9.222),
]))
fillet2.Radius = 1
doc.recompute()

fillet3 = body.newObject("PartDesign::Fillet", "Fillet002")
fillet3.Base = (fillet2, edges_at(fillet2, [
    (18.5, 0.776, 13.3),
    (18.5, -3.074, 12.425),
    (18.5, 0.776, 11.55),
    (18.5, 4.626, 12.425),
]))
fillet3.Radius = 1

doc.recompute()
